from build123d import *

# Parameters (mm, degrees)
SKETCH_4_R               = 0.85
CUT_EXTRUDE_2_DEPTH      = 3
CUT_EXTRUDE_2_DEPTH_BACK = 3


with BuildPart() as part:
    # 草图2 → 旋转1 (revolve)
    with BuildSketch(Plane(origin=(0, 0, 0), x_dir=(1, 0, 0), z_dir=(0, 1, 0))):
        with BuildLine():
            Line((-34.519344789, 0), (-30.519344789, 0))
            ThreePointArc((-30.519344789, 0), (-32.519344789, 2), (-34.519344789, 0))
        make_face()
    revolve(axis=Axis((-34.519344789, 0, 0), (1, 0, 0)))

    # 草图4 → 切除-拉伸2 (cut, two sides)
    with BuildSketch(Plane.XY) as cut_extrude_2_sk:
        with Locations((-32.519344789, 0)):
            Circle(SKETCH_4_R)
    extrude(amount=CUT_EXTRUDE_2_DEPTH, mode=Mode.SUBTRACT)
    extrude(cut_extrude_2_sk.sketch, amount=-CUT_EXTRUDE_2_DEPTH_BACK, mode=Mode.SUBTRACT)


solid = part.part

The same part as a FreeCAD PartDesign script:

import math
import FreeCAD as App
import Part
import Sketcher
from FreeCAD import Vector
Q = App.Units.Quantity

doc = App.newDocument("Part")
body = doc.addObject("PartDesign::Body", "Body")

# Sketch on XZ plane
sketch1 = body.newObject("Sketcher::SketchObject", "Sketch")
sketch1.AttachmentSupport = (doc.getObject("XZ_Plane"), [""])
sketch1.MapMode = "FlatFace"
sketch1.addGeometry([
    Part.LineSegment(Vector(-34.5, 0, 0), Vector(-30.5, 0, 0)),
    Part.ArcOfCircle(Part.Circle(Vector(-32.5, 0, 0), Vector(0, 0, 1), 2), math.radians(180), math.radians(360)),
], False)
sketch1.addConstraint([
    Sketcher.Constraint("Coincident", 0, 1, 1, 1),
    Sketcher.Constraint("Coincident", 1, 2, 0, 2),
    Sketcher.Constraint("Horizontal", 0),
    Sketcher.Constraint("PointOnObject", 1, 3, -1),
    Sketcher.Constraint("PointOnObject", 0, 1, -1),
    Sketcher.Constraint("Radius", 1, Q("2 mm")),
    Sketcher.Constraint("DistanceX", 1, 3, -1, 1, Q("32.519345 mm")),
])
revolution = body.newObject("PartDesign::Revolution", "Revolution")
revolution.Profile = sketch1
revolution.ReferenceAxis = (sketch1, ["H_Axis"])
revolution.Angle = 360

# Sketch on XY plane
sketch2 = body.newObject("Sketcher::SketchObject", "Sketch001")
sketch2.AttachmentSupport = (doc.getObject("XY_Plane"), [""])
sketch2.MapMode = "FlatFace"
sketch2.addGeometry(Part.Circle(Vector(-32.5, 0, 0), Vector(0, 0, 1), 0.8), False)
sketch2.addConstraint([
    Sketcher.Constraint("PointOnObject", 0, 3, -1),
    Sketcher.Constraint("Diameter", 0, Q("1.7 mm")),
    Sketcher.Constraint("DistanceX", 0, 3, -1, 1, Q("32.519345 mm")),
])
pocket1 = body.newObject("PartDesign::Pocket", "Pocket")
pocket1.Profile = sketch2
pocket1.Type = "ThroughAll"
pocket1.Midplane = True

doc.recompute()
